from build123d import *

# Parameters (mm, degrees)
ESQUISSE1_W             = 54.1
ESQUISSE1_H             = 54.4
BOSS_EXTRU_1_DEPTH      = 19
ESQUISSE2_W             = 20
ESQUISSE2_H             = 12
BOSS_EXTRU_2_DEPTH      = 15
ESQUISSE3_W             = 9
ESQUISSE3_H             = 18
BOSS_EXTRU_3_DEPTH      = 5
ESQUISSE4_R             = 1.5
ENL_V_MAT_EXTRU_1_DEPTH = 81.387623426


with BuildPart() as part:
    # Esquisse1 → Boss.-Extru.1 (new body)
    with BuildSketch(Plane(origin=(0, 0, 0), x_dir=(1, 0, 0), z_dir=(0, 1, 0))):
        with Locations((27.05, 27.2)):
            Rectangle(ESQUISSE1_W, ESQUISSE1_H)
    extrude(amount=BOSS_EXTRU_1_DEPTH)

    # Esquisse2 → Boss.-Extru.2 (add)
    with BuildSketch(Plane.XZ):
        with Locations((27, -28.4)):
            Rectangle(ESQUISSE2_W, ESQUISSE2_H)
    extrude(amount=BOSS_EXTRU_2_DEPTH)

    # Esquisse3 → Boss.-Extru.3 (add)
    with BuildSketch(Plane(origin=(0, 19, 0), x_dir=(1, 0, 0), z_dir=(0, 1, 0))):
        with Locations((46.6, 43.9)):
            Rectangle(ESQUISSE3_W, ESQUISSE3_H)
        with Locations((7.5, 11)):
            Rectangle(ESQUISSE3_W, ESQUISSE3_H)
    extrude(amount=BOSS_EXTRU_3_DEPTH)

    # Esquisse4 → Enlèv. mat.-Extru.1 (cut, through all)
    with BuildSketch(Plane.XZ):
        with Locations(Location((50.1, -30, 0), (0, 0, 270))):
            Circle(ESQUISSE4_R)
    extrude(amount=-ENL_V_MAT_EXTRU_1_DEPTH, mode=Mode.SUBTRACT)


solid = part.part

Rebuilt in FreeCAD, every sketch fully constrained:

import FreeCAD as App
import Part
import Sketcher
from FreeCAD import Vector
Q = App.Units.Quantity


def add_polygon(sketch, points):
    """Adds a closed chain of lines whose ends are joined by coincident constraints."""
    first, n = sketch.GeometryCount, len(points)
    for a, b in zip(points, points[1:] + points[:1]):
        sketch.addGeometry(Part.LineSegment(App.Vector(*a, 0), App.Vector(*b, 0)), False)
    for i in range(n):
        sketch.addConstraint(Sketcher.Constraint("Coincident", first + i, 2, first + (i + 1) % n, 1))

doc = App.newDocument("Part")
body = doc.addObject("PartDesign::Body", "Body")

# Sketch on XZ plane
sketch1 = body.newObject("Sketcher::SketchObject", "Sketch")
sketch1.AttachmentSupport = (doc.getObject("XZ_Plane"), [""])
sketch1.MapMode = "FlatFace"
add_polygon(sketch1, [(0, -54.4), (0, 0), (54.1, 0), (54.1, -54.4)])  # lines 0-3
sketch1.addConstraint([
    Sketcher.Constraint("Vertical", 0),
    Sketcher.Constraint("Horizontal", 1),
    Sketcher.Constraint("Vertical", 2),
    Sketcher.Constraint("Horizontal", 3),
    Sketcher.Constraint("Coincident", 0, 2, -1, 1),
    Sketcher.Constraint("DistanceX", 1, 1, 1, 2, Q("54.1 mm")),
    Sketcher.Constraint("DistanceY", 0, 1, 0, 2, Q("54.4 mm")),
])
pad1 = body.newObject("PartDesign::Pad", "Pad")
pad1.Profile = sketch1
pad1.Length = 19
pad1.Reversed = True

# Sketch on XZ plane
sketch2 = body.newObject("Sketcher::SketchObject", "Sketch001")
sketch2.AttachmentSupport = (doc.getObject("XZ_Plane"), [""])
sketch2.MapMode = "FlatFace"
add_polygon(sketch2, [(17, -22.4), (17, -34.4), (37, -34.4), (37, -22.4)])  # lines 0-3
sketch2.addConstraint([
    Sketcher.Constraint("Vertical", 0),
    Sketcher.Constraint("Horizontal", 1),
    Sketcher.Constraint("Vertical", 2),
    Sketcher.Constraint("Horizontal", 3),
    Sketcher.Constraint("DistanceX", 1, 1, 1, 2, Q("20 mm")),
    Sketcher.Constraint("DistanceY", 0, 2, 0, 1, Q("12 mm")),
    Sketcher.Constraint("DistanceX", -1, 1, 0, 2, Q("17 mm")),
    Sketcher.Constraint("DistanceY", 0, 2, -1, 1, Q("34.4 mm")),
])
pad2 = body.newObject("PartDesign::Pad", "Pad001")
pad2.Profile = sketch2
pad2.Length = 15

# Sketch on XZ plane
sketch3 = body.newObject("Sketcher::SketchObject", "Sketch002")
sketch3.AttachmentSupport = (doc.getObject("XZ_Plane"), [""])
sketch3.MapMode = "FlatFace"
sketch3.AttachmentOffset = App.Placement(Vector(0, 0, -19), App.Rotation())
add_polygon(sketch3, [(42.1, -52.9), (42.1, -34.9), (51.1, -34.9), (51.1, -52.9)])  # lines 0-3
add_polygon(sketch3, [(3, -20), (3, -2), (12, -2), (12, -20)])  # lines 4-7
sketch3.addConstraint([
    Sketcher.Constraint("Vertical", 0),
    Sketcher.Constraint("Horizontal", 1),
    Sketcher.Constraint("Vertical", 2),
    Sketcher.Constraint("Horizontal", 3),
    Sketcher.Constraint("Vertical", 4),
    Sketcher.Constraint("Horizontal", 5),
    Sketcher.Constraint("Vertical", 6),
    Sketcher.Constraint("Horizontal", 7),
    Sketcher.Constraint("Equal", 3, 5),
    Sketcher.Constraint("Equal", 2, 4),
    Sketcher.Constraint("DistanceX", 1, 1, 1, 2, Q("9 mm")),
    Sketcher.Constraint("DistanceY", 0, 1, 0, 2, Q("18 mm")),
    Sketcher.Constraint("DistanceX", -1, 1, 4, 2, Q("3 mm")),
    Sketcher.Constraint("DistanceY", 4, 2, -1, 1, Q("2 mm")),
    Sketcher.Constraint("DistanceX", -1, 1, 0, 2, Q("42.1 mm")),
    Sketcher.Constraint("DistanceY", 0, 2, -1, 1, Q("34.9 mm")),
])
pad3 = body.newObject("PartDesign::Pad", "Pad002")
pad3.Profile = sketch3
pad3.Length = 5
pad3.Reversed = True

# Sketch on XZ plane
sketch4 = body.newObject("Sketcher::SketchObject", "Sketch003")
sketch4.AttachmentSupport = (doc.getObject("XZ_Plane"), [""])
sketch4.MapMode = "FlatFace"
sketch4.addGeometry(Part.Circle(Vector(50.1, -30, 0), Vector(0, 0, 1), 1.5), False)
sketch4.addConstraint([
    Sketcher.Constraint("Diameter", 0, Q("3 mm")),
    Sketcher.Constraint("DistanceY", 0, 3, -1, 1, Q("30 mm")),
    Sketcher.Constraint("DistanceX", -1, 1, 0, 3, Q("50.1 mm")),
])
pocket1 = body.newObject("PartDesign::Pocket", "Pocket")
pocket1.Profile = sketch4
pocket1.Type = "ThroughAll"

doc.recompute()
